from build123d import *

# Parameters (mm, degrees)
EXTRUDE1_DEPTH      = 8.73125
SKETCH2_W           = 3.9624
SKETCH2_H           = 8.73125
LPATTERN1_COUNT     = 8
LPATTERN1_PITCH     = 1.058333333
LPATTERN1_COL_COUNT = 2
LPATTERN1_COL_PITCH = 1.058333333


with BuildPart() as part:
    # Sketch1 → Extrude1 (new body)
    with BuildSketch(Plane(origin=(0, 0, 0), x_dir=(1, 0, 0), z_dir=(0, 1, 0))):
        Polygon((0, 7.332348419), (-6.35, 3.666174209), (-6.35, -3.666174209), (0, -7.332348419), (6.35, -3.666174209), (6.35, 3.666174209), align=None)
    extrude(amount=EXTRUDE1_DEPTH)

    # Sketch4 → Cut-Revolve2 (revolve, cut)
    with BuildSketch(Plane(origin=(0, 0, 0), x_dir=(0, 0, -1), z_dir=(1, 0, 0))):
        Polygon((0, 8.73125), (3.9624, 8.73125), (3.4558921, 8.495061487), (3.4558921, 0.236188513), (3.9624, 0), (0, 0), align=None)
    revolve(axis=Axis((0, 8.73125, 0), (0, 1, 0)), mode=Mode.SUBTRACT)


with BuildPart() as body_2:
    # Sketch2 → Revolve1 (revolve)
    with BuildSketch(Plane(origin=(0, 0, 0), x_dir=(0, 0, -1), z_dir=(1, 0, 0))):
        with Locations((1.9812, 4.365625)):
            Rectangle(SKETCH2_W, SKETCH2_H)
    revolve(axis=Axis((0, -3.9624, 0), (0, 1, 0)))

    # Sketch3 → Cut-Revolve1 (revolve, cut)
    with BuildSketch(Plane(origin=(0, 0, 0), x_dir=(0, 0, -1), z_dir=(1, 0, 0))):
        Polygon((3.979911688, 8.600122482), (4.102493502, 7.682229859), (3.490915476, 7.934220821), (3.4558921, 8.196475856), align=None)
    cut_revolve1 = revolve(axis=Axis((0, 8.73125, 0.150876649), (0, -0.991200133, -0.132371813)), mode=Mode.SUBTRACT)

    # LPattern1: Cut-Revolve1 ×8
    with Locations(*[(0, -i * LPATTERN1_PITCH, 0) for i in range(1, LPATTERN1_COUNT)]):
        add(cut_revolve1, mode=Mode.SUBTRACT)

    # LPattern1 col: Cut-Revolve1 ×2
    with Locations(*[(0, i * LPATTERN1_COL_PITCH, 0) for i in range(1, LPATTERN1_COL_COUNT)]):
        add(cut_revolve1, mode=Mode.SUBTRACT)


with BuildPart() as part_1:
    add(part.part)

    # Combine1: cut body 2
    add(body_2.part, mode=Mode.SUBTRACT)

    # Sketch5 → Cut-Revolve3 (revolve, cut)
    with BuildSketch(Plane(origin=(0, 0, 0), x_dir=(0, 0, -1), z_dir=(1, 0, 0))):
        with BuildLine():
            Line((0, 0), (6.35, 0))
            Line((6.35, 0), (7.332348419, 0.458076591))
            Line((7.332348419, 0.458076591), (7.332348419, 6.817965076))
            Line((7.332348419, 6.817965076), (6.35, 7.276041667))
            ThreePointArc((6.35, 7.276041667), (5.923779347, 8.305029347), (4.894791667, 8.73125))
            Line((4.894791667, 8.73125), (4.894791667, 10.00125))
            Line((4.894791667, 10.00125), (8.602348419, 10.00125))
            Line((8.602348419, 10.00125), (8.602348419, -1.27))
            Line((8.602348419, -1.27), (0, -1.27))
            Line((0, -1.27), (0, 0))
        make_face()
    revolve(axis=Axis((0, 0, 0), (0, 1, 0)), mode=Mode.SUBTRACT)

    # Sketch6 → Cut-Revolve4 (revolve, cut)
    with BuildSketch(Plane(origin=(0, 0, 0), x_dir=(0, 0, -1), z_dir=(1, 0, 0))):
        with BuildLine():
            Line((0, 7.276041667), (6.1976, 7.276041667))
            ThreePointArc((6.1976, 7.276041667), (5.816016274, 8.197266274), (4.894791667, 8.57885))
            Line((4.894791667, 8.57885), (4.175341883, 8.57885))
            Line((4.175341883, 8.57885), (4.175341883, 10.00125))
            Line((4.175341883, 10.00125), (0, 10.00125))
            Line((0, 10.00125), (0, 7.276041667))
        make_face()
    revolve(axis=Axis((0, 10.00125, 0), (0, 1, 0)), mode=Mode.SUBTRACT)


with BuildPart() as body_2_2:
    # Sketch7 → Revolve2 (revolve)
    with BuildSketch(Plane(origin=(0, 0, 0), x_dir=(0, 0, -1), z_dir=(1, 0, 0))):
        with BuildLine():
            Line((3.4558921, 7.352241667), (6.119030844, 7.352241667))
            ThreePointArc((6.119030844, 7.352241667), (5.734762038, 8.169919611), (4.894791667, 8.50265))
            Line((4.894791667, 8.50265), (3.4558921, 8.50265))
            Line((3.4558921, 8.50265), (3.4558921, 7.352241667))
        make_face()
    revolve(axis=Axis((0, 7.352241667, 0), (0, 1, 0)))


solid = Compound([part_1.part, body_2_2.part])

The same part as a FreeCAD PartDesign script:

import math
import FreeCAD as App
import Part
import Sketcher

V = App.Vector
Q = App.Units.Quantity


def add_polygon(sketch, points):
    """Adds a closed chain of lines whose ends are joined by coincident constraints."""
    first, n = sketch.GeometryCount, len(points)
    for a, b in zip(points, points[1:] + points[:1]):
        sketch.addGeometry(Part.LineSegment(App.Vector(*a, 0), App.Vector(*b, 0)), False)
    for i in range(n):
        sketch.addConstraint(Sketcher.Constraint("Coincident", first + i, 2, first + (i + 1) % n, 1))

doc = App.newDocument("Part")
body = doc.addObject("PartDesign::Body", "Body")

sketch1 = doc.addObject("Sketcher::SketchObject", "Sketch")
body.addObject(sketch1)
sketch1.AttachmentSupport = (doc.XZ_Plane, [""])
sketch1.MapMode = "FlatFace"
add_polygon(sketch1, [(0, -7.332348), (-6.35, -3.666174), (-6.35, 3.666174), (0, 7.332348), (6.35, 3.666174), (6.35, -3.666174)])
sketch1.addConstraint([
    Sketcher.Constraint("Vertical", 1),
    Sketcher.Constraint("Vertical", 4),
    Sketcher.Constraint("Symmetric", 0, 2, 3, 2, -1, 1),
    Sketcher.Constraint("Symmetric", 2, 2, 5, 2, -1, 1),
    Sketcher.Constraint("PointOnObject", 2, 2, -2),
    Sketcher.Constraint("Parallel", 2, 5),
    Sketcher.Constraint("Horizontal", 1, 2, 3, 2),
    Sketcher.Constraint("Angle", 0, Q("150 deg")),
    Sketcher.Constraint("DistanceX", 1, 2, 3, 2, Q("0.5 in")),
    Sketcher.Constraint("DistanceY", 1, 1, 1, 2, Q("7.332348 mm")),
])
pad1 = doc.addObject("PartDesign::Pad", "Pad")
body.addObject(pad1)
pad1.Profile = sketch1
pad1.Length = Q("0.34375 in")
pad1.Reversed = True

sketch2 = doc.addObject("Sketcher::SketchObject", "Sketch001")
body.addObject(sketch2)
sketch2.AttachmentSupport = (doc.YZ_Plane, [""])
sketch2.MapMode = "FlatFace"
add_polygon(sketch2, [(8.73125, -3.9624), (8.73125, 0), (0, 0), (0, -3.9624), (0.236189, -3.455892), (8.495061, -3.455892)])
sketch2.addConstraint([
    Sketcher.Constraint("Vertical", 0),
    Sketcher.Constraint("Horizontal", 1),
    Sketcher.Constraint("Vertical", 2),
    Sketcher.Constraint("Horizontal", 4),
    Sketcher.Constraint("Coincident", 1, 2, -1, 1),
    Sketcher.Constraint("Horizontal", 2, 2, 5, 2),
    Sketcher.Constraint("Equal", 3, 5),
    Sketcher.Constraint("Angle", 3, Q("65 deg")),
    Sketcher.Constraint("DistanceX", 1, 2, 1, 1, Q("0.34375 in")),
    Sketcher.Constraint("DistanceY", 0, 1, 0, 2, Q("0.156 in")),
    Sketcher.Constraint("Distance", 3, Q("0.55887 mm")),
])
groove = doc.addObject("PartDesign::Groove", "Groove")
body.addObject(groove)
groove.Profile = sketch2
groove.ReferenceAxis = (sketch2, ["H_Axis"])
groove.Angle = 360
body2 = doc.addObject("PartDesign::Body", "Body001")

sketch3 = doc.addObject("Sketcher::SketchObject", "Sketch002")
body2.addObject(sketch3)
sketch3.AttachmentSupport = (doc.getObject("YZ_Plane001"), [""])
sketch3.MapMode = "FlatFace"
add_polygon(sketch3, [(8.73125, 0), (0, 0), (0, -3.9624), (8.73125, -3.9624)])
sketch3.addConstraint([
    Sketcher.Constraint("Horizontal", 0),
    Sketcher.Constraint("Vertical", 1),
    Sketcher.Constraint("Horizontal", 2),
    Sketcher.Constraint("Vertical", 3),
    Sketcher.Constraint("Coincident", 0, 2, -1, 1),
    Sketcher.Constraint("DistanceX", 0, 2, 0, 1, Q("0.34375 in")),
    Sketcher.Constraint("DistanceY", 1, 2, 1, 1, Q("0.156 in")),
])
revolution = doc.addObject("PartDesign::Revolution", "Revolution")
body2.addObject(revolution)
revolution.Profile = sketch3
revolution.ReferenceAxis = (sketch3, ["H_Axis"])
revolution.Angle = 360

sketch4 = doc.addObject("Sketcher::SketchObject", "Sketch003")
body2.addObject(sketch4)
sketch4.AttachmentSupport = (doc.getObject("YZ_Plane001"), [""])
sketch4.MapMode = "FlatFace"
add_polygon(sketch4, [(7.68223, -4.102494), (8.600122, -3.979912), (8.196476, -3.455892), (7.934221, -3.490915)])
sketch4.addGeometry(Part.LineSegment(V(8.060432, 0.061291, 0), V(7.142539, -0.061291, 0)), True)
sketch4.addConstraint([
    Sketcher.Constraint("Parallel", 0, 2),
    Sketcher.Constraint("Parallel", 2, 4),
    Sketcher.Constraint("Equal", 1, 3),
    Sketcher.Constraint("Equal", 0, 4),
    Sketcher.Constraint("DistanceX", 2, 2, 0, 2, Q("0.665902 mm")),
    Sketcher.Constraint("DistanceY", 3, 2, 1, 2, Q("0.646601 mm")),
    Sketcher.Constraint("DistanceY", 1, 2, 4, 2, Q("3.394601 mm")),
    Sketcher.Constraint("Distance", 0, Q("0.926042 mm")),
    Sketcher.Constraint("Distance", 1, Q("0.661458 mm")),
    Sketcher.Constraint("DistanceY", 0, 2, -1, 1, Q("3.979912 mm")),
    Sketcher.Constraint("DistanceX", -1, 1, 2, 2, Q("7.934221 mm")),
    Sketcher.Constraint("DistanceX", -1, 1, 4, 1, Q("8.060432 mm")),
])
groove2 = doc.addObject("PartDesign::Groove", "Groove001")
body2.addObject(groove2)
groove2.Profile = sketch4
groove2.ReferenceAxis = (sketch4, ["Axis0"])
groove2.Angle = 360
doc.recompute()

linearpattern = doc.addObject("PartDesign::LinearPattern", "LinearPattern")
body2.addObject(linearpattern)
linearpattern.Originals = [groove2]
linearpattern.Direction = (doc.getObject("Y_Axis001"), [""])
linearpattern.Mode = "offset"
linearpattern.Offset = 1.058333
linearpattern.Occurrences = 8
linearpattern.Reversed = True
body2.Tip = linearpattern
doc.recompute()

linearpattern2 = doc.addObject("PartDesign::LinearPattern", "LinearPattern001")
body2.addObject(linearpattern2)
linearpattern2.Originals = [groove2]
linearpattern2.Direction = (doc.getObject("Y_Axis001"), [""])
linearpattern2.Mode = "offset"
linearpattern2.Offset = 1.058333
linearpattern2.Occurrences = 2
body2.Tip = linearpattern2
doc.recompute()

boolean = doc.addObject("PartDesign::Boolean", "Boolean")
body.addObject(boolean)
boolean.Type = "Cut"
boolean.addObjects([body2])

sketch5 = doc.addObject("Sketcher::SketchObject", "Sketch004")
body.addObject(sketch5)
sketch5.AttachmentSupport = (doc.YZ_Plane, [""])
sketch5.MapMode = "FlatFace"
sketch5.addGeometry([
    Part.LineSegment(V(0, -6.35, 0), V(0, 0, 0)),
    Part.LineSegment(V(0, 0, 0), V(-1.27, 0, 0)),
    Part.LineSegment(V(-1.27, 0, 0), V(-1.27, -8.602348, 0)),
    Part.LineSegment(V(-1.27, -8.602348, 0), V(10.00125, -8.602348, 0)),
    Part.LineSegment(V(10.00125, -8.602348, 0), V(10.00125, -4.894792, 0)),
    Part.LineSegment(V(10.00125, -4.894792, 0), V(8.73125, -4.894792, 0)),
    Part.ArcOfCircle(Part.Circle(V(7.276042, -4.894792, 0), V(0, 0, 1), 1.455208), math.radians(-90), math.radians(0)),
    Part.LineSegment(V(7.276042, -6.35, 0), V(6.817965, -7.332348, 0)),
    Part.LineSegment(V(6.817965, -7.332348, 0), V(0.458077, -7.332348, 0)),
    Part.LineSegment(V(0.458077, -7.332348, 0), V(0, -6.35, 0)),
], False)
sketch5.addConstraint([
    Sketcher.Constraint("Coincident", 0, 2, 1, 1),
    Sketcher.Constraint("Coincident", 1, 2, 2, 1),
    Sketcher.Constraint("Coincident", 2, 2, 3, 1),
    Sketcher.Constraint("Coincident", 3, 2, 4, 1),
    Sketcher.Constraint("Coincident", 4, 2, 5, 1),
    Sketcher.Constraint("Coincident", 5, 2, 6, 2),
    Sketcher.Constraint("Coincident", 6, 1, 7, 1),
    Sketcher.Constraint("Coincident", 7, 2, 8, 1),
    Sketcher.Constraint("Coincident", 8, 2, 9, 1),
    Sketcher.Constraint("Coincident", 9, 2, 0, 1),
    Sketcher.Constraint("Vertical", 0),
    Sketcher.Constraint("Horizontal", 1),
    Sketcher.Constraint("Vertical", 2),
    Sketcher.Constraint("Horizontal", 3),
    Sketcher.Constraint("Vertical", 4),
    Sketcher.Constraint("Horizontal", 5),
    Sketcher.Constraint("Horizontal", 8),
    Sketcher.Constraint("Coincident", 0, 2, -1, 1),
    Sketcher.Constraint("Horizontal", 6, 3, 4, 2),
    Sketcher.Constraint("Horizontal", 6, 1, 9, 2),
    Sketcher.Constraint("Equal", 1, 5),
    Sketcher.Constraint("Equal", 7, 9),
    Sketcher.Constraint("Angle", 7, Q("-115 deg")),
    Sketcher.Constraint("DistanceX", 1, 2, 1, 1, Q("0.05 in")),
    Sketcher.Constraint("DistanceY", 0, 1, 0, 2, Q("0.25 in")),
    Sketcher.Constraint("DistanceY", 3, 2, 7, 2, Q("0.05 in")),
    Sketcher.Constraint("DistanceX", -1, 1, 5, 2, Q("0.34375 in")),
    Sketcher.Constraint("Radius", 6, Q("1.455208 mm")),
    Sketcher.Constraint("Distance", 7, Q("1.083902 mm")),
    Sketcher.Constraint("DistanceX", 8, 2, 8, 1, Q("6.359888 mm")),
])
groove3 = doc.addObject("PartDesign::Groove", "Groove002")
body.addObject(groove3)
groove3.Profile = sketch5
groove3.ReferenceAxis = (sketch5, ["H_Axis"])
groove3.Angle = 360

sketch6 = doc.addObject("Sketcher::SketchObject", "Sketch005")
body.addObject(sketch6)
sketch6.AttachmentSupport = (doc.YZ_Plane, [""])
sketch6.MapMode = "FlatFace"
sketch6.addGeometry([
    Part.LineSegment(V(7.276042, 0, 0), V(7.276042, -6.1976, 0)),
    Part.ArcOfCircle(Part.Circle(V(7.276042, -4.894792, 0), V(0, 0, 1), 1.302808), math.radians(-90), math.radians(0)),
    Part.LineSegment(V(8.57885, -4.894792, 0), V(8.57885, -4.175342, 0)),
    Part.LineSegment(V(8.57885, -4.175342, 0), V(10.00125, -4.175342, 0)),
    Part.LineSegment(V(10.00125, -4.175342, 0), V(10.00125, 0, 0)),
    Part.LineSegment(V(10.00125, 0, 0), V(7.276042, 0, 0)),
], False)
sketch6.addConstraint([
    Sketcher.Constraint("Coincident", 0, 2, 1, 1),
    Sketcher.Constraint("Tangent", 1, 2, 2, 1),
    Sketcher.Constraint("Coincident", 2, 2, 3, 1),
    Sketcher.Constraint("Coincident", 3, 2, 4, 1),
    Sketcher.Constraint("Coincident", 4, 2, 5, 1),
    Sketcher.Constraint("Coincident", 5, 2, 0, 1),
    Sketcher.Constraint("Vertical", 0),
    Sketcher.Constraint("Vertical", 2),
    Sketcher.Constraint("Horizontal", 3),
    Sketcher.Constraint("Vertical", 4),
    Sketcher.Constraint("Horizontal", 5),
    Sketcher.Constraint("PointOnObject", 4, 2, -1),
    Sketcher.Constraint("Vertical", 1, 3, 0, 2),
    Sketcher.Constraint("DistanceX", 3, 1, 3, 2, Q("0.056 in")),
    Sketcher.Constraint("DistanceY", 0, 2, 0, 1, Q("0.244 in")),
    Sketcher.Constraint("Radius", 1, Q("1.302808 mm")),
    Sketcher.Constraint("DistanceY", 2, 1, 2, 2, Q("0.71945 mm")),
    Sketcher.Constraint("DistanceX", -1, 1, 1, 3, Q("7.276042 mm")),
])
groove4 = doc.addObject("PartDesign::Groove", "Groove003")
body.addObject(groove4)
groove4.Profile = sketch6
groove4.ReferenceAxis = (sketch6, ["H_Axis"])
groove4.Angle = 360
body3 = doc.addObject("PartDesign::Body", "Body002")

sketch7 = doc.addObject("Sketcher::SketchObject", "Sketch006")
body3.addObject(sketch7)
sketch7.AttachmentSupport = (doc.getObject("YZ_Plane002"), [""])
sketch7.MapMode = "FlatFace"
sketch7.addGeometry([
    Part.LineSegment(V(7.352242, -3.455892, 0), V(7.352242, -6.119031, 0)),
    Part.ArcOfCircle(Part.Circle(V(7.276042, -4.894792, 0), V(0, 0, 1), 1.226608), math.radians(-86.438348), math.radians(0)),
    Part.LineSegment(V(8.50265, -4.894792, 0), V(8.50265, -3.455892, 0)),
    Part.LineSegment(V(8.50265, -3.455892, 0), V(7.352242, -3.455892, 0)),
], False)
sketch7.addConstraint([
    Sketcher.Constraint("Coincident", 0, 2, 1, 1),
    Sketcher.Constraint("Tangent", 1, 2, 2, 1),
    Sketcher.Constraint("Coincident", 2, 2, 3, 1),
    Sketcher.Constraint("Coincident", 3, 2, 0, 1),
    Sketcher.Constraint("Vertical", 0),
    Sketcher.Constraint("Vertical", 2),
    Sketcher.Constraint("Horizontal", 3),
    Sketcher.Constraint("Radius", 1, Q("1.226608 mm")),
    Sketcher.Constraint("DistanceX", 1, 3, 0, 2, Q("0.003 in")),
    Sketcher.Constraint("DistanceY", 2, 1, 2, 2, Q("1.4389 mm")),
    Sketcher.Constraint("DistanceX", -1, 1, 1, 3, Q("7.276042 mm")),
    Sketcher.Constraint("DistanceY", 1, 3, -1, 1, Q("4.894792 mm")),
])
revolution2 = doc.addObject("PartDesign::Revolution", "Revolution001")
body3.addObject(revolution2)
revolution2.Profile = sketch7
revolution2.ReferenceAxis = (sketch7, ["H_Axis"])
revolution2.Angle = 360

doc.recompute()
